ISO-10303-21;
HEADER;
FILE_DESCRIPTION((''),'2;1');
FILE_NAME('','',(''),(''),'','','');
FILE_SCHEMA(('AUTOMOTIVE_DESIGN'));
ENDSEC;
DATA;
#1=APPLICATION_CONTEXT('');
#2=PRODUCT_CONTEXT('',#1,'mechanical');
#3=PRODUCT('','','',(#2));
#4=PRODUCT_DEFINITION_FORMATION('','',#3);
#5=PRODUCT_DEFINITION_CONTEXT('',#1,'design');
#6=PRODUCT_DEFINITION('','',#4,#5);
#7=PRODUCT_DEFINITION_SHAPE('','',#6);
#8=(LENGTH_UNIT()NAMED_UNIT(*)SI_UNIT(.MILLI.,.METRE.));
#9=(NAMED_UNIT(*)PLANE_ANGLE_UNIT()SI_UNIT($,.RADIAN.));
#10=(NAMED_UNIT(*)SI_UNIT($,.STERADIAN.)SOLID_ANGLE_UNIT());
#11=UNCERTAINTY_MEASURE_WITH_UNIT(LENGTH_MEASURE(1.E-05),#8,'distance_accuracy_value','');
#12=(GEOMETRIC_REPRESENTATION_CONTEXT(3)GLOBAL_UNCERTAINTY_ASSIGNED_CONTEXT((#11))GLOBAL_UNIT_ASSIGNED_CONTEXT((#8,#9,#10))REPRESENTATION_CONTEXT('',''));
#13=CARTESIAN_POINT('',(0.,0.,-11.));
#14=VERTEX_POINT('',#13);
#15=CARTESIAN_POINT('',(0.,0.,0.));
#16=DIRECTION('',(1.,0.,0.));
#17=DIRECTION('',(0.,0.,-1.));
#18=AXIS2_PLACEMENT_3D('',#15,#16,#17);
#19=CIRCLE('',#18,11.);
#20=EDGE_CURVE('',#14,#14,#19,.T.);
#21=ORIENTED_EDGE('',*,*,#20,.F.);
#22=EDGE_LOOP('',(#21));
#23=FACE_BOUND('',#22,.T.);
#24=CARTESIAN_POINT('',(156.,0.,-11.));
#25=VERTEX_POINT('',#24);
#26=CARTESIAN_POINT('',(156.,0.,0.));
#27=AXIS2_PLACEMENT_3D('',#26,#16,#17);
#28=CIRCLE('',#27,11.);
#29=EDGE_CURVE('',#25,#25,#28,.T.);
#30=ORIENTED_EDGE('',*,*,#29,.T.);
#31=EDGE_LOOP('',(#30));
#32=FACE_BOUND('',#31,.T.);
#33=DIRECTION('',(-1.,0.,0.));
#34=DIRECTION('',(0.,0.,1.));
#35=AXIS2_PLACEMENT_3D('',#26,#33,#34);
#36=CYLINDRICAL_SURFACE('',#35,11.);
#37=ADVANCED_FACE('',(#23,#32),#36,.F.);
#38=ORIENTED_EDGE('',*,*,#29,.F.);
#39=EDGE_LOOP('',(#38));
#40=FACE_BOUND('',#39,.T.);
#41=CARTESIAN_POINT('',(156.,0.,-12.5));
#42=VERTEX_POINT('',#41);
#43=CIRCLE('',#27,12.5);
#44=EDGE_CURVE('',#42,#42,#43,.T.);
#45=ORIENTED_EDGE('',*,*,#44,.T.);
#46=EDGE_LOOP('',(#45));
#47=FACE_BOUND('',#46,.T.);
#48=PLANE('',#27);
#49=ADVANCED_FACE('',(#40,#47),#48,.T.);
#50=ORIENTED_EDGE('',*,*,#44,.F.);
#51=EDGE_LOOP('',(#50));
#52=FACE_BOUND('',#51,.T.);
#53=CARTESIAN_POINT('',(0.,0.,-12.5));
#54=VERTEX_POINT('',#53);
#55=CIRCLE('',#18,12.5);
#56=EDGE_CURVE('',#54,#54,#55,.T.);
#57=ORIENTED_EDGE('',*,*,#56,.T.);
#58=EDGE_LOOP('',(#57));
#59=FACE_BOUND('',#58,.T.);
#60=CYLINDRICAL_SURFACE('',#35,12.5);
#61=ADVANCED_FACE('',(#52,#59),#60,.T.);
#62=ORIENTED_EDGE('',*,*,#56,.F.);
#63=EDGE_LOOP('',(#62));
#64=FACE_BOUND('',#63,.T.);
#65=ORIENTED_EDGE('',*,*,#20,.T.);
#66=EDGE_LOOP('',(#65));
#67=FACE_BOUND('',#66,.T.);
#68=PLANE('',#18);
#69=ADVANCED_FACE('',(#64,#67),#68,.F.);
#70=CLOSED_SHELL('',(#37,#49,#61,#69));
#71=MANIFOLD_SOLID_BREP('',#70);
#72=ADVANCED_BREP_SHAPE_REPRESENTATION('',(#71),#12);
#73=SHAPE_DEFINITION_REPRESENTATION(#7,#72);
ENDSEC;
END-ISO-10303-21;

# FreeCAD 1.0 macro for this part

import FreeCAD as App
import Part
import Sketcher

doc = App.newDocument("Part")
params = doc.addObject("Spreadsheet::Sheet", "Params")
for row, (alias, value) in enumerate([
    ("sketch1_diameter", "25 mm"),
    ("sketch1_diameter2", "22 mm"),
    ("pad1_length", "156 mm"),
], start=1):
    params.set(f"A{row}", alias)
    params.set(f"B{row}", "=" + value)
    params.setAlias(f"B{row}", alias)

body = doc.addObject("PartDesign::Body", "Body")

# Sketch on YZ plane
sketch1 = body.newObject("Sketcher::SketchObject", "Sketch")
sketch1.AttachmentSupport = (doc.getObject("YZ_Plane"), [""])
sketch1.MapMode = "FlatFace"
sketch1.addGeometry(Part.Circle(App.Vector(0, 0, 0), App.Vector(0, 0, 1), 12.5), False)
sketch1.addGeometry(Part.Circle(App.Vector(0, 0, 0), App.Vector(0, 0, 1), 11), False)
sketch1.addConstraint(Sketcher.Constraint("Coincident", 0, 3, -1, 1))
sketch1.addConstraint(Sketcher.Constraint("Coincident", 1, 3, -1, 1))
sketch1.addConstraint(Sketcher.Constraint("Diameter", 0, 25.0))
sketch1.addConstraint(Sketcher.Constraint("Diameter", 1, 22.0))
sketch1.setExpression("Constraints[2]", "Params.sketch1_diameter")
sketch1.setExpression("Constraints[3]", "Params.sketch1_diameter2")
pad1 = body.newObject("PartDesign::Pad", "Pad")
pad1.Profile = sketch1
pad1.setExpression("Length", "Params.pad1_length")

doc.recompute()
